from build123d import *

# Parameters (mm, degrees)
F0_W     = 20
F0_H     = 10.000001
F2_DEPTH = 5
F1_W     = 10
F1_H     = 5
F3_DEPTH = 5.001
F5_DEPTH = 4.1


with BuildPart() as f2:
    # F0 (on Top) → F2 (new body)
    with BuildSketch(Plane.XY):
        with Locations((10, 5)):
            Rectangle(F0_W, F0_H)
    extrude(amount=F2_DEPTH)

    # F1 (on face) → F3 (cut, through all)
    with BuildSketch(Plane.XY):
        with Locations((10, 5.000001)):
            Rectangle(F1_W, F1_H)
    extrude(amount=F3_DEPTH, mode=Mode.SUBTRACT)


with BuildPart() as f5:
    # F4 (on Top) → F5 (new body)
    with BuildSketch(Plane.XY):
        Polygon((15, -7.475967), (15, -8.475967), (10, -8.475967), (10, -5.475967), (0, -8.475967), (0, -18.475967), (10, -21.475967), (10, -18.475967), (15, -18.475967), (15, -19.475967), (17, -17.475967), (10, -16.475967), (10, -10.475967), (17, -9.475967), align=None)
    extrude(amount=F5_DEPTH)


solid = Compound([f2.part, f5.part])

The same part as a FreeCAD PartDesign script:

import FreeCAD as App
import Part
import Sketcher
Q = App.Units.Quantity


def add_polygon(sketch, points):
    """Adds a closed chain of lines whose ends are joined by coincident constraints."""
    first, n = sketch.GeometryCount, len(points)
    for a, b in zip(points, points[1:] + points[:1]):
        sketch.addGeometry(Part.LineSegment(App.Vector(*a, 0), App.Vector(*b, 0)), False)
    for i in range(n):
        sketch.addConstraint(Sketcher.Constraint("Coincident", first + i, 2, first + (i + 1) % n, 1))

doc = App.newDocument("Part")
body = doc.addObject("PartDesign::Body", "Body")

sketch1 = body.newObject("Sketcher::SketchObject", "Sketch")
sketch1.AttachmentSupport = (doc.getObject("XY_Plane"), [""])
sketch1.MapMode = "FlatFace"
add_polygon(sketch1, [(0, 10.000001), (0, 0), (20, 0), (20, 10.000001)])
sketch1.addConstraint(Sketcher.Constraint("Vertical", 0))
sketch1.addConstraint(Sketcher.Constraint("Horizontal", 1))
sketch1.addConstraint(Sketcher.Constraint("Vertical", 2))
sketch1.addConstraint(Sketcher.Constraint("Horizontal", 3))
sketch1.addConstraint(Sketcher.Constraint("Coincident", 0, 2, -1, 1))
sketch1.addConstraint(Sketcher.Constraint("DistanceX", 1, 1, 1, 2, Q("20 mm")))
sketch1.addConstraint(Sketcher.Constraint("DistanceY", 0, 2, 0, 1, Q("10.000001 mm")))
pad1 = body.newObject("PartDesign::Pad", "Pad")
pad1.Profile = sketch1
pad1.Length = 5

sketch2 = body.newObject("Sketcher::SketchObject", "Sketch001")
sketch2.AttachmentSupport = (doc.getObject("XY_Plane"), [""])
sketch2.MapMode = "FlatFace"
add_polygon(sketch2, [(5, 7.500001), (5, 2.500001), (15, 2.500001), (15, 7.500001)])
sketch2.addConstraint(Sketcher.Constraint("Vertical", 0))
sketch2.addConstraint(Sketcher.Constraint("Horizontal", 1))
sketch2.addConstraint(Sketcher.Constraint("Vertical", 2))
sketch2.addConstraint(Sketcher.Constraint("Horizontal", 3))
sketch2.addConstraint(Sketcher.Constraint("DistanceX", 1, 1, 1, 2, Q("10 mm")))
sketch2.addConstraint(Sketcher.Constraint("DistanceY", 0, 2, 0, 1, Q("5 mm")))
sketch2.addConstraint(Sketcher.Constraint("DistanceX", -1, 1, 0, 2, Q("5 mm")))
sketch2.addConstraint(Sketcher.Constraint("DistanceY", -1, 1, 0, 2, Q("2.500001 mm")))
pocket1 = body.newObject("PartDesign::Pocket", "Pocket")
pocket1.Profile = sketch2
pocket1.Type = "ThroughAll"
pocket1.Reversed = True
body2 = doc.addObject("PartDesign::Body", "Body001")

sketch3 = body2.newObject("Sketcher::SketchObject", "Sketch002")
sketch3.AttachmentSupport = (doc.getObject("XY_Plane001"), [""])
sketch3.MapMode = "FlatFace"
add_polygon(sketch3, [(15, -7.475967), (15, -8.475967), (10, -8.475967), (10, -5.475967), (0, -8.475967), (0, -18.475967), (10, -21.475967), (10, -18.475967), (15, -18.475967), (15, -19.475967), (17, -17.475967), (10, -16.475967), (10, -10.475967), (17, -9.475967)])
sketch3.addConstraint(Sketcher.Constraint("Vertical", 0))
sketch3.addConstraint(Sketcher.Constraint("Horizontal", 1))
sketch3.addConstraint(Sketcher.Constraint("Vertical", 2))
sketch3.addConstraint(Sketcher.Constraint("Vertical", 4))
sketch3.addConstraint(Sketcher.Constraint("Vertical", 6))
sketch3.addConstraint(Sketcher.Constraint("Horizontal", 7))
sketch3.addConstraint(Sketcher.Constraint("Vertical", 8))
sketch3.addConstraint(Sketcher.Constraint("Vertical", 11))
sketch3.addConstraint(Sketcher.Constraint("PointOnObject", 3, 2, -2))
sketch3.addConstraint(Sketcher.Constraint("Perpendicular", 9, 13))
sketch3.addConstraint(Sketcher.Constraint("Horizontal", 1, 2, 3, 2))
sketch3.addConstraint(Sketcher.Constraint("Horizontal", 4, 2, 6, 2))
sketch3.addConstraint(Sketcher.Constraint("Vertical", 2, 2, 5, 2))
sketch3.addConstraint(Sketcher.Constraint("Vertical", 0, 2, 7, 2))
sketch3.addConstraint(Sketcher.Constraint("Vertical", 6, 2, 10, 2))
sketch3.addConstraint(Sketcher.Constraint("Vertical", 9, 2, 12, 2))
sketch3.addConstraint(Sketcher.Constraint("Equal", 2, 6))
sketch3.addConstraint(Sketcher.Constraint("Equal", 0, 8))
sketch3.addConstraint(Sketcher.Constraint("Equal", 10, 12))
sketch3.addConstraint(Sketcher.Constraint("Equal", 9, 13))
sketch3.addConstraint(Sketcher.Constraint("DistanceX", 1, 2, 1, 1, Q("5 mm")))
sketch3.addConstraint(Sketcher.Constraint("DistanceY", 0, 2, 0, 1, Q("1 mm")))
sketch3.addConstraint(Sketcher.Constraint("DistanceY", 2, 1, 2, 2, Q("3 mm")))
sketch3.addConstraint(Sketcher.Constraint("DistanceY", 4, 2, 4, 1, Q("10 mm")))
sketch3.addConstraint(Sketcher.Constraint("DistanceY", 11, 1, 11, 2, Q("6 mm")))
sketch3.addConstraint(Sketcher.Constraint("DistanceX", -1, 1, 0, 2, Q("15 mm")))
sketch3.addConstraint(Sketcher.Constraint("DistanceX", -1, 1, 9, 2, Q("17 mm")))
sketch3.addConstraint(Sketcher.Constraint("DistanceY", 0, 2, -1, 1, Q("8.475967 mm")))
pad2 = body2.newObject("PartDesign::Pad", "Pad001")
pad2.Profile = sketch3
pad2.Length = 4.1

doc.recompute()
